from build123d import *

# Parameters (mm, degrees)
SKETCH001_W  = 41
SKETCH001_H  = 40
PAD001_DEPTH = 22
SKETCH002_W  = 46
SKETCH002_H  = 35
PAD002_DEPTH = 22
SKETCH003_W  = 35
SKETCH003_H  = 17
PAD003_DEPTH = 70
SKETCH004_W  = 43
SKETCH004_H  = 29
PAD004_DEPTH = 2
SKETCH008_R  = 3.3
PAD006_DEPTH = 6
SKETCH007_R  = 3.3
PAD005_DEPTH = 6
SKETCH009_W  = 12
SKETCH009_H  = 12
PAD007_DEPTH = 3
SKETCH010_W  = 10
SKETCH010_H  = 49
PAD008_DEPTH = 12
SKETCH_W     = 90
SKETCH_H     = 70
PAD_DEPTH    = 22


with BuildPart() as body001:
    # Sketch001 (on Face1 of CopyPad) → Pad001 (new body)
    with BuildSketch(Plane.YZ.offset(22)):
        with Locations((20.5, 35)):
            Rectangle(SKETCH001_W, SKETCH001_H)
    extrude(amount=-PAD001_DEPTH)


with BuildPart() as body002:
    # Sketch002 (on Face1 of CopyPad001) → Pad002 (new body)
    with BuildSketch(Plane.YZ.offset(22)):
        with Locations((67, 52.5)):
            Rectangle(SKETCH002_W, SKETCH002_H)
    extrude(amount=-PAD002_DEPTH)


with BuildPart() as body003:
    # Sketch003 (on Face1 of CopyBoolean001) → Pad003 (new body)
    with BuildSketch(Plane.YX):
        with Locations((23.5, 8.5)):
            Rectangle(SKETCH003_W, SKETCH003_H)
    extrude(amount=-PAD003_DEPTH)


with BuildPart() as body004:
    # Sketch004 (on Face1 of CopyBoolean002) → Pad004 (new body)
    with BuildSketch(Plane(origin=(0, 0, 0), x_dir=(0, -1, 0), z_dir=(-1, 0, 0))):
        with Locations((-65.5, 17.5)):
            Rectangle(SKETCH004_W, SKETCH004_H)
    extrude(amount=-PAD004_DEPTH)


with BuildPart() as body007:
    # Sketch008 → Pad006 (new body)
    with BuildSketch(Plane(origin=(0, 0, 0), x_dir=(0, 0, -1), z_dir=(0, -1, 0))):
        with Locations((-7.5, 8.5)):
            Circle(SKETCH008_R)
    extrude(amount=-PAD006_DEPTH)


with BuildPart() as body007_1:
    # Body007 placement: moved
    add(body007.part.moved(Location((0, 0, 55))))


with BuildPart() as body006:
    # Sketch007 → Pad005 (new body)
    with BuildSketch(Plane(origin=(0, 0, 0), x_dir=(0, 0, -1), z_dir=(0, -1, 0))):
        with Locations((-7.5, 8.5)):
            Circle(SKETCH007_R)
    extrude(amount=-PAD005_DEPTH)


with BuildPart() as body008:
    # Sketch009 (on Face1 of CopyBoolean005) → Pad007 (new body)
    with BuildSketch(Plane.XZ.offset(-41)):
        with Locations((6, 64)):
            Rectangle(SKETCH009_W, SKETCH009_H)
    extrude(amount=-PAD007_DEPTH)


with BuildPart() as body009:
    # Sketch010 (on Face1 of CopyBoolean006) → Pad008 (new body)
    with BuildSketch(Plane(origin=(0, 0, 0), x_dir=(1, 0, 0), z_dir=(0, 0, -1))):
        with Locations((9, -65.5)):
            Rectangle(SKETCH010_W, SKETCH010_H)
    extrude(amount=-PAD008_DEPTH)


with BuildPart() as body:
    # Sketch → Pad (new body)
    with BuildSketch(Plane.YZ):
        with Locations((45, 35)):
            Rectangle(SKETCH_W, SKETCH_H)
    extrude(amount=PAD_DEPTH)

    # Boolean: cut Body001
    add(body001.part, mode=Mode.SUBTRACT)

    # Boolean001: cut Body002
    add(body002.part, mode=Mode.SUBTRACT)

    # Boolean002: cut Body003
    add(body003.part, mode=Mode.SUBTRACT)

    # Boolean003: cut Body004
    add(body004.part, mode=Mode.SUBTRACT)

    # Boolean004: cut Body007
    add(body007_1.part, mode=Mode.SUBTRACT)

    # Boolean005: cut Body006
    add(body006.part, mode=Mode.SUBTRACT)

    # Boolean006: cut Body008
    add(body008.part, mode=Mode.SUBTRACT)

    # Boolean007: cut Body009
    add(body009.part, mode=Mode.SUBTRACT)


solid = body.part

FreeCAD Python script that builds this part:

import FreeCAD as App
import Part
import Sketcher
from FreeCAD import Vector
Q = App.Units.Quantity

doc = App.newDocument("Part")
body = doc.addObject("PartDesign::Body", "Body")

sketch1 = doc.addObject("Sketcher::SketchObject", "Sketch")
body.addObject(sketch1)
sketch1.AttachmentSupport = (doc.YZ_Plane, [""])
sketch1.MapMode = "FlatFace"
sketch1.AttachmentOffset = App.Placement(Vector(0, 0, 22), App.Rotation())
sketch1.addGeometry([
    Part.LineSegment(Vector(0, 55, 0), Vector(0, 15, 0)),
    Part.LineSegment(Vector(0, 15, 0), Vector(41, 15, 0)),
    Part.LineSegment(Vector(41, 15, 0), Vector(41, 55, 0)),
    Part.LineSegment(Vector(41, 55, 0), Vector(0, 55, 0)),
], False)
sketch1.addConstraint([
    Sketcher.Constraint("Coincident", 0, 2, 1, 1),
    Sketcher.Constraint("Coincident", 1, 2, 2, 1),
    Sketcher.Constraint("Coincident", 2, 2, 3, 1),
    Sketcher.Constraint("Coincident", 3, 2, 0, 1),
    Sketcher.Constraint("Vertical", 0),
    Sketcher.Constraint("Horizontal", 1),
    Sketcher.Constraint("Vertical", 2),
    Sketcher.Constraint("Horizontal", 3),
    Sketcher.Constraint("PointOnObject", 0, 2, -2),
    Sketcher.Constraint("DistanceX", 1, 1, 1, 2, Q("41 mm")),
    Sketcher.Constraint("DistanceY", 0, 2, 0, 1, Q("40 mm")),
    Sketcher.Constraint("DistanceY", -1, 1, 0, 2, Q("15 mm")),
])
pad1 = doc.addObject("PartDesign::Pad", "Pad")
body.addObject(pad1)
pad1.Profile = sketch1
pad1.Length = 22
pad1.Reversed = True
body2 = doc.addObject("PartDesign::Body", "Body001")

sketch2 = doc.addObject("Sketcher::SketchObject", "Sketch001")
body2.addObject(sketch2)
sketch2.AttachmentSupport = (doc.getObject("YZ_Plane001"), [""])
sketch2.MapMode = "FlatFace"
sketch2.AttachmentOffset = App.Placement(Vector(0, 0, 22), App.Rotation())
sketch2.addGeometry([
    Part.LineSegment(Vector(44, 70, 0), Vector(44, 35, 0)),
    Part.LineSegment(Vector(44, 35, 0), Vector(90, 35, 0)),
    Part.LineSegment(Vector(90, 35, 0), Vector(90, 70, 0)),
    Part.LineSegment(Vector(90, 70, 0), Vector(44, 70, 0)),
], False)
sketch2.addConstraint([
    Sketcher.Constraint("Coincident", 0, 2, 1, 1),
    Sketcher.Constraint("Coincident", 1, 2, 2, 1),
    Sketcher.Constraint("Coincident", 2, 2, 3, 1),
    Sketcher.Constraint("Coincident", 3, 2, 0, 1),
    Sketcher.Constraint("Vertical", 0),
    Sketcher.Constraint("Horizontal", 1),
    Sketcher.Constraint("Vertical", 2),
    Sketcher.Constraint("Horizontal", 3),
    Sketcher.Constraint("DistanceX", 1, 1, 1, 2, Q("46 mm")),
    Sketcher.Constraint("DistanceY", 0, 2, 0, 1, Q("35 mm")),
    Sketcher.Constraint("DistanceX", -1, 1, 0, 2, Q("44 mm")),
    Sketcher.Constraint("DistanceY", -1, 1, 0, 2, Q("35 mm")),
])
pad2 = doc.addObject("PartDesign::Pad", "Pad001")
body2.addObject(pad2)
pad2.Profile = sketch2
pad2.Length = 22
pad2.Reversed = True
body3 = doc.addObject("PartDesign::Body", "Body002")

sketch3 = doc.addObject("Sketcher::SketchObject", "Sketch002")
body3.addObject(sketch3)
sketch3.AttachmentSupport = (doc.getObject("XY_Plane002"), [""])
sketch3.MapMode = "FlatFace"
sketch3.addGeometry([
    Part.LineSegment(Vector(17, 6, 0), Vector(0, 6, 0)),
    Part.LineSegment(Vector(0, 6, 0), Vector(0, 41, 0)),
    Part.LineSegment(Vector(0, 41, 0), Vector(17, 41, 0)),
    Part.LineSegment(Vector(17, 41, 0), Vector(17, 6, 0)),
], False)
sketch3.addConstraint([
    Sketcher.Constraint("Coincident", 0, 2, 1, 1),
    Sketcher.Constraint("Coincident", 1, 2, 2, 1),
    Sketcher.Constraint("Coincident", 2, 2, 3, 1),
    Sketcher.Constraint("Coincident", 3, 2, 0, 1),
    Sketcher.Constraint("Horizontal", 0),
    Sketcher.Constraint("Vertical", 1),
    Sketcher.Constraint("Horizontal", 2),
    Sketcher.Constraint("Vertical", 3),
    Sketcher.Constraint("PointOnObject", 0, 2, -2),
    Sketcher.Constraint("DistanceX", 0, 2, 0, 1, Q("17 mm")),
    Sketcher.Constraint("DistanceY", 1, 1, 1, 2, Q("35 mm")),
    Sketcher.Constraint("DistanceY", -1, 1, 0, 2, Q("6 mm")),
])
pad3 = doc.addObject("PartDesign::Pad", "Pad002")
body3.addObject(pad3)
pad3.Profile = sketch3
pad3.Length = 70
body4 = doc.addObject("PartDesign::Body", "Body003")

sketch4 = doc.addObject("Sketcher::SketchObject", "Sketch003")
body4.addObject(sketch4)
sketch4.AttachmentSupport = (doc.getObject("YZ_Plane003"), [""])
sketch4.MapMode = "FlatFace"
sketch4.addGeometry([
    Part.LineSegment(Vector(87, 32, 0), Vector(87, 3, 0)),
    Part.LineSegment(Vector(87, 3, 0), Vector(44, 3, 0)),
    Part.LineSegment(Vector(44, 3, 0), Vector(44, 32, 0)),
    Part.LineSegment(Vector(44, 32, 0), Vector(87, 32, 0)),
], False)
sketch4.addConstraint([
    Sketcher.Constraint("Coincident", 0, 2, 1, 1),
    Sketcher.Constraint("Coincident", 1, 2, 2, 1),
    Sketcher.Constraint("Coincident", 2, 2, 3, 1),
    Sketcher.Constraint("Coincident", 3, 2, 0, 1),
    Sketcher.Constraint("Vertical", 0),
    Sketcher.Constraint("Horizontal", 1),
    Sketcher.Constraint("Vertical", 2),
    Sketcher.Constraint("Horizontal", 3),
    Sketcher.Constraint("DistanceX", 1, 2, 1, 1, Q("43 mm")),
    Sketcher.Constraint("DistanceY", 0, 2, 0, 1, Q("29 mm")),
    Sketcher.Constraint("DistanceX", -1, 1, 0, 2, Q("87 mm")),
    Sketcher.Constraint("DistanceY", -1, 1, 0, 2, Q("3 mm")),
])
pad4 = doc.addObject("PartDesign::Pad", "Pad003")
body4.addObject(pad4)
pad4.Profile = sketch4
pad4.Length = 2
body5 = doc.addObject("PartDesign::Body", "Body004")

sketch5 = doc.addObject("Sketcher::SketchObject", "Sketch004")
body5.addObject(sketch5)
sketch5.AttachmentSupport = (doc.getObject("XZ_Plane004"), [""])
sketch5.MapMode = "FlatFace"
sketch5.addGeometry(Part.Circle(Vector(8.5, 7.5, 0), Vector(0, 0, 1), 3.3), False)
sketch5.addConstraint([
    Sketcher.Constraint("Diameter", 0, Q("6.6 mm")),
    Sketcher.Constraint("DistanceX", -1, 1, 0, 3, Q("8.5 mm")),
    Sketcher.Constraint("DistanceY", -1, 1, 0, 3, Q("7.5 mm")),
])
pad5 = doc.addObject("PartDesign::Pad", "Pad004")
body5.addObject(pad5)
pad5.Profile = sketch5
pad5.Length = 6
pad5.Reversed = True
body6 = doc.addObject("PartDesign::Body", "Body005")
doc.recompute()

body5.Placement = App.Placement(Vector(0, 0, 55), App.Rotation(Vector(0, 0, 1), 0))
boolean = doc.addObject("PartDesign::Boolean", "Boolean")
body6.addObject(boolean)
boolean.Type = "Fuse"
boolean.addObjects([body5])
body7 = doc.addObject("PartDesign::Body", "Body006")

sketch6 = doc.addObject("Sketcher::SketchObject", "Sketch005")
body7.addObject(sketch6)
sketch6.AttachmentSupport = (doc.getObject("XZ_Plane006"), [""])
sketch6.MapMode = "FlatFace"
sketch6.addGeometry(Part.Circle(Vector(8.5, 7.5, 0), Vector(0, 0, 1), 3.3), False)
sketch6.addConstraint([
    Sketcher.Constraint("Diameter", 0, Q("6.6 mm")),
    Sketcher.Constraint("DistanceX", -1, 1, 0, 3, Q("8.5 mm")),
    Sketcher.Constraint("DistanceY", -1, 1, 0, 3, Q("7.5 mm")),
])
pad6 = doc.addObject("PartDesign::Pad", "Pad005")
body7.addObject(pad6)
pad6.Profile = sketch6
pad6.Length = 6
pad6.Reversed = True
body8 = doc.addObject("PartDesign::Body", "Body007")

sketch7 = doc.addObject("Sketcher::SketchObject", "Sketch006")
body8.addObject(sketch7)
sketch7.AttachmentSupport = (doc.getObject("XZ_Plane007"), [""])
sketch7.MapMode = "FlatFace"
sketch7.AttachmentOffset = App.Placement(Vector(0, 0, -41), App.Rotation())
sketch7.addGeometry([
    Part.LineSegment(Vector(0, 70, 0), Vector(0, 58, 0)),
    Part.LineSegment(Vector(0, 58, 0), Vector(12, 58, 0)),
    Part.LineSegment(Vector(12, 58, 0), Vector(12, 70, 0)),
    Part.LineSegment(Vector(12, 70, 0), Vector(0, 70, 0)),
], False)
sketch7.addConstraint([
    Sketcher.Constraint("Coincident", 0, 2, 1, 1),
    Sketcher.Constraint("Coincident", 1, 2, 2, 1),
    Sketcher.Constraint("Coincident", 2, 2, 3, 1),
    Sketcher.Constraint("Coincident", 3, 2, 0, 1),
    Sketcher.Constraint("Vertical", 0),
    Sketcher.Constraint("Horizontal", 1),
    Sketcher.Constraint("Vertical", 2),
    Sketcher.Constraint("Horizontal", 3),
    Sketcher.Constraint("PointOnObject", 0, 2, -2),
    Sketcher.Constraint("Equal", 3, 0),
    Sketcher.Constraint("DistanceX", 1, 1, 1, 2, Q("12 mm")),
    Sketcher.Constraint("DistanceY", -1, 1, 0, 2, Q("58 mm")),
])
pad7 = doc.addObject("PartDesign::Pad", "Pad006")
body8.addObject(pad7)
pad7.Profile = sketch7
pad7.Length = 3
pad7.Reversed = True
body9 = doc.addObject("PartDesign::Body", "Body008")

sketch8 = doc.addObject("Sketcher::SketchObject", "Sketch007")
body9.addObject(sketch8)
sketch8.AttachmentSupport = (doc.getObject("XY_Plane008"), [""])
sketch8.MapMode = "FlatFace"
sketch8.addGeometry([
    Part.LineSegment(Vector(4, 41, 0), Vector(4, 90, 0)),
    Part.LineSegment(Vector(4, 90, 0), Vector(14, 90, 0)),
    Part.LineSegment(Vector(14, 90, 0), Vector(14, 41, 0)),
    Part.LineSegment(Vector(14, 41, 0), Vector(4, 41, 0)),
], False)
sketch8.addConstraint([
    Sketcher.Constraint("Coincident", 0, 2, 1, 1),
    Sketcher.Constraint("Coincident", 1, 2, 2, 1),
    Sketcher.Constraint("Coincident", 2, 2, 3, 1),
    Sketcher.Constraint("Coincident", 3, 2, 0, 1),
    Sketcher.Constraint("Vertical", 0),
    Sketcher.Constraint("Horizontal", 1),
    Sketcher.Constraint("Vertical", 2),
    Sketcher.Constraint("Horizontal", 3),
    Sketcher.Constraint("DistanceX", 1, 1, 1, 2, Q("10 mm")),
    Sketcher.Constraint("DistanceY", 0, 1, 0, 2, Q("49 mm")),
    Sketcher.Constraint("DistanceX", -1, 1, 0, 2, Q("4 mm")),
    Sketcher.Constraint("DistanceY", -1, 1, 0, 2, Q("90 mm")),
])
pad8 = doc.addObject("PartDesign::Pad", "Pad007")
body9.addObject(pad8)
pad8.Profile = sketch8
pad8.Length = 12
body10 = doc.addObject("PartDesign::Body", "Body009")

sketch9 = doc.addObject("Sketcher::SketchObject", "Sketch008")
body10.addObject(sketch9)
sketch9.AttachmentSupport = (doc.getObject("YZ_Plane009"), [""])
sketch9.MapMode = "FlatFace"
sketch9.addGeometry([
    Part.LineSegment(Vector(0, 70, 0), Vector(0, 0, 0)),
    Part.LineSegment(Vector(0, 0, 0), Vector(90, 0, 0)),
    Part.LineSegment(Vector(90, 0, 0), Vector(90, 70, 0)),
    Part.LineSegment(Vector(90, 70, 0), Vector(0, 70, 0)),
], False)
sketch9.addConstraint([
    Sketcher.Constraint("Coincident", 0, 2, 1, 1),
    Sketcher.Constraint("Coincident", 1, 2, 2, 1),
    Sketcher.Constraint("Coincident", 2, 2, 3, 1),
    Sketcher.Constraint("Coincident", 3, 2, 0, 1),
    Sketcher.Constraint("Vertical", 0),
    Sketcher.Constraint("Horizontal", 1),
    Sketcher.Constraint("Vertical", 2),
    Sketcher.Constraint("Horizontal", 3),
    Sketcher.Constraint("Coincident", 0, 2, -1, 1),
    Sketcher.Constraint("DistanceX", 1, 1, 1, 2, Q("90 mm")),
    Sketcher.Constraint("DistanceY", 0, 2, 0, 1, Q("70 mm")),
])
pad9 = doc.addObject("PartDesign::Pad", "Pad008")
body10.addObject(pad9)
pad9.Profile = sketch9
pad9.Length = 22
doc.recompute()

boolean2 = doc.addObject("PartDesign::Boolean", "Boolean001")
body10.addObject(boolean2)
boolean2.Type = "Cut"
boolean2.addObjects([body])
doc.recompute()

boolean3 = doc.addObject("PartDesign::Boolean", "Boolean002")
body10.addObject(boolean3)
boolean3.Type = "Cut"
boolean3.addObjects([body2])
doc.recompute()

boolean4 = doc.addObject("PartDesign::Boolean", "Boolean003")
body10.addObject(boolean4)
boolean4.Type = "Cut"
boolean4.addObjects([body3])
doc.recompute()

boolean5 = doc.addObject("PartDesign::Boolean", "Boolean004")
body10.addObject(boolean5)
boolean5.Type = "Cut"
boolean5.addObjects([body4])
doc.recompute()

boolean6 = doc.addObject("PartDesign::Boolean", "Boolean005")
body10.addObject(boolean6)
boolean6.Type = "Cut"
boolean6.addObjects([body6])
doc.recompute()

boolean7 = doc.addObject("PartDesign::Boolean", "Boolean006")
body10.addObject(boolean7)
boolean7.Type = "Cut"
boolean7.addObjects([body7])
doc.recompute()

boolean8 = doc.addObject("PartDesign::Boolean", "Boolean007")
body10.addObject(boolean8)
boolean8.Type = "Cut"
boolean8.addObjects([body8])
doc.recompute()

boolean9 = doc.addObject("PartDesign::Boolean", "Boolean008")
body10.addObject(boolean9)
boolean9.Type = "Cut"
boolean9.addObjects([body9])

doc.recompute()
